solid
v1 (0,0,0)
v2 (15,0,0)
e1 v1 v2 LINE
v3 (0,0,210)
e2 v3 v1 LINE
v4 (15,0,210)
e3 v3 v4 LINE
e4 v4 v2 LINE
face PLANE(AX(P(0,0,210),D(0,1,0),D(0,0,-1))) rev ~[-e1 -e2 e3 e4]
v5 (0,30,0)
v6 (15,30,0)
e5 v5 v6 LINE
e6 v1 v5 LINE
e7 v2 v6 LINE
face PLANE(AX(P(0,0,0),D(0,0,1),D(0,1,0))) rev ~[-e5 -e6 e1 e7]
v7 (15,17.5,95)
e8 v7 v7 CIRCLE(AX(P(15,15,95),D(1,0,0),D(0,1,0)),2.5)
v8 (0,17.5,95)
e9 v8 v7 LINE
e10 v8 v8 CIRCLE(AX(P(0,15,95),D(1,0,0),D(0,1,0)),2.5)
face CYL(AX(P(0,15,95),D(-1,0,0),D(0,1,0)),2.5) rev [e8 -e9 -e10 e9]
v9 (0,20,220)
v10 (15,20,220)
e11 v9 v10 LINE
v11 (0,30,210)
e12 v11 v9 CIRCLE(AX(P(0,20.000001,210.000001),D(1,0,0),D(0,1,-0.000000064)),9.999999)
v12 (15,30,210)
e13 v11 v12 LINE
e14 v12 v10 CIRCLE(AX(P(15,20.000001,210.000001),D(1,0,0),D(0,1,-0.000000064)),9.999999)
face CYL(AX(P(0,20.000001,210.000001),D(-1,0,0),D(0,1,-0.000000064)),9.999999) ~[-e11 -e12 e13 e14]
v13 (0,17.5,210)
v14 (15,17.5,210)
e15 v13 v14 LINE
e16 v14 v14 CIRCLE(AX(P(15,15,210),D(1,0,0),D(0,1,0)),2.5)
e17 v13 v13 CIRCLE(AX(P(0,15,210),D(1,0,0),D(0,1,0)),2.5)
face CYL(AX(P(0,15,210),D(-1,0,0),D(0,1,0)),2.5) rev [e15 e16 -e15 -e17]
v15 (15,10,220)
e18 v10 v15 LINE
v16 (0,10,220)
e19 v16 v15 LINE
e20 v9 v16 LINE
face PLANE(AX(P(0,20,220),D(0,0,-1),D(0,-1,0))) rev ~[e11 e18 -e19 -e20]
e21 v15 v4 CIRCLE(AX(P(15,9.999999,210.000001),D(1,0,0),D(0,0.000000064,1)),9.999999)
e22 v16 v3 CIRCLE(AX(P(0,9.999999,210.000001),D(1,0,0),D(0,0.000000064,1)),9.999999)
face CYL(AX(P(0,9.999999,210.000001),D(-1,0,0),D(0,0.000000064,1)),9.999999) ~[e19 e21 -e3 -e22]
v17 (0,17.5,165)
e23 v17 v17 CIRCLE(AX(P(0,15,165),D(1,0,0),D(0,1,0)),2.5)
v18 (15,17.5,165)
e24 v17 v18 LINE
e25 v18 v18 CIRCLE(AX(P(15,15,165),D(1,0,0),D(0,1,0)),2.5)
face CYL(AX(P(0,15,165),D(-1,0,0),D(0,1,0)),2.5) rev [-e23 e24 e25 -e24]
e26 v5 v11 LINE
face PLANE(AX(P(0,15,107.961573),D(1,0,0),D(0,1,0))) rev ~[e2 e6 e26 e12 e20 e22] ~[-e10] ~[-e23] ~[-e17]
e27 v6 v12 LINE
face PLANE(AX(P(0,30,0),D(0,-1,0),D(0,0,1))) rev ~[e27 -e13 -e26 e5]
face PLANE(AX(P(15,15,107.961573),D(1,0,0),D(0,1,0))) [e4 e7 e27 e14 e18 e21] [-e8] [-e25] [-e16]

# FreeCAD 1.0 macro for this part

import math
import FreeCAD as App
import Part
import Sketcher
Q = App.Units.Quantity

doc = App.newDocument("Part")
body = doc.addObject("PartDesign::Body", "Body")

# Sketch on YZ plane
sketch1 = body.newObject("Sketcher::SketchObject", "Sketch")
sketch1.AttachmentSupport = (doc.getObject("YZ_Plane"), [""])
sketch1.MapMode = "FlatFace"
sketch1.addGeometry([
    Part.LineSegment(App.Vector(0, 210, 0), App.Vector(0, 0, 0)),  # 0
    Part.LineSegment(App.Vector(0, 0, 0), App.Vector(30, 0, 0)),  # 1
    Part.LineSegment(App.Vector(30, 0, 0), App.Vector(30, 210, 0)),  # 2
    Part.ArcOfCircle(Part.Circle(App.Vector(20.000001, 210.000001, 0), App.Vector(0, 0, 1), 9.999999), math.radians(-0.000004), math.radians(90.000004)),  # 3
    Part.LineSegment(App.Vector(20, 220, 0), App.Vector(10, 220, 0)),  # 4
    Part.ArcOfCircle(Part.Circle(App.Vector(9.999999, 210.000001, 0), App.Vector(0, 0, 1), 9.999999), math.radians(89.999996), math.radians(180.000004)),  # 5
    Part.Circle(App.Vector(15, 95, 0), App.Vector(0, 0, 1), 2.5),  # 6
    Part.Circle(App.Vector(15, 165, 0), App.Vector(0, 0, 1), 2.5),  # 7
    Part.Circle(App.Vector(15, 210, 0), App.Vector(0, 0, 1), 2.5),  # 8
], False)
sketch1.addConstraint([
    Sketcher.Constraint("Coincident", 0, 2, 1, 1),
    Sketcher.Constraint("Coincident", 1, 2, 2, 1),
    Sketcher.Constraint("Tangent", 2, 2, 3, 1),
    Sketcher.Constraint("Tangent", 3, 2, 4, 1),
    Sketcher.Constraint("Tangent", 4, 2, 5, 1),
    Sketcher.Constraint("Tangent", 5, 2, 0, 1),
    Sketcher.Constraint("Vertical", 0),
    Sketcher.Constraint("Horizontal", 1),
    Sketcher.Constraint("Vertical", 2),
    Sketcher.Constraint("Horizontal", 4),
    Sketcher.Constraint("Coincident", 0, 2, -1, 1),
    Sketcher.Constraint("Equal", 3, 5),
    Sketcher.Constraint("Equal", 6, 7),
    Sketcher.Constraint("Equal", 7, 8),
    Sketcher.Constraint("Horizontal", 5, 3, 8, 3),
    Sketcher.Constraint("Vertical", 6, 3, 7, 3),
    Sketcher.Constraint("Vertical", 7, 3, 8, 3),
    Sketcher.Constraint("Diameter", 6, Q("5 mm")),
    Sketcher.Constraint("Radius", 3, Q("9.999999 mm")),
    Sketcher.Constraint("DistanceX", 1, 1, 1, 2, Q("30 mm")),
    Sketcher.Constraint("DistanceY", 0, 2, 0, 1, Q("210 mm")),
    Sketcher.Constraint("DistanceX", -1, 1, 6, 3, Q("15 mm")),
    Sketcher.Constraint("DistanceY", -1, 1, 6, 3, Q("95 mm")),
    Sketcher.Constraint("DistanceY", -1, 1, 7, 3, Q("165 mm")),
])
pad1 = body.newObject("PartDesign::Pad", "Pad")
pad1.Profile = sketch1
pad1.Length = 15

doc.recompute()
